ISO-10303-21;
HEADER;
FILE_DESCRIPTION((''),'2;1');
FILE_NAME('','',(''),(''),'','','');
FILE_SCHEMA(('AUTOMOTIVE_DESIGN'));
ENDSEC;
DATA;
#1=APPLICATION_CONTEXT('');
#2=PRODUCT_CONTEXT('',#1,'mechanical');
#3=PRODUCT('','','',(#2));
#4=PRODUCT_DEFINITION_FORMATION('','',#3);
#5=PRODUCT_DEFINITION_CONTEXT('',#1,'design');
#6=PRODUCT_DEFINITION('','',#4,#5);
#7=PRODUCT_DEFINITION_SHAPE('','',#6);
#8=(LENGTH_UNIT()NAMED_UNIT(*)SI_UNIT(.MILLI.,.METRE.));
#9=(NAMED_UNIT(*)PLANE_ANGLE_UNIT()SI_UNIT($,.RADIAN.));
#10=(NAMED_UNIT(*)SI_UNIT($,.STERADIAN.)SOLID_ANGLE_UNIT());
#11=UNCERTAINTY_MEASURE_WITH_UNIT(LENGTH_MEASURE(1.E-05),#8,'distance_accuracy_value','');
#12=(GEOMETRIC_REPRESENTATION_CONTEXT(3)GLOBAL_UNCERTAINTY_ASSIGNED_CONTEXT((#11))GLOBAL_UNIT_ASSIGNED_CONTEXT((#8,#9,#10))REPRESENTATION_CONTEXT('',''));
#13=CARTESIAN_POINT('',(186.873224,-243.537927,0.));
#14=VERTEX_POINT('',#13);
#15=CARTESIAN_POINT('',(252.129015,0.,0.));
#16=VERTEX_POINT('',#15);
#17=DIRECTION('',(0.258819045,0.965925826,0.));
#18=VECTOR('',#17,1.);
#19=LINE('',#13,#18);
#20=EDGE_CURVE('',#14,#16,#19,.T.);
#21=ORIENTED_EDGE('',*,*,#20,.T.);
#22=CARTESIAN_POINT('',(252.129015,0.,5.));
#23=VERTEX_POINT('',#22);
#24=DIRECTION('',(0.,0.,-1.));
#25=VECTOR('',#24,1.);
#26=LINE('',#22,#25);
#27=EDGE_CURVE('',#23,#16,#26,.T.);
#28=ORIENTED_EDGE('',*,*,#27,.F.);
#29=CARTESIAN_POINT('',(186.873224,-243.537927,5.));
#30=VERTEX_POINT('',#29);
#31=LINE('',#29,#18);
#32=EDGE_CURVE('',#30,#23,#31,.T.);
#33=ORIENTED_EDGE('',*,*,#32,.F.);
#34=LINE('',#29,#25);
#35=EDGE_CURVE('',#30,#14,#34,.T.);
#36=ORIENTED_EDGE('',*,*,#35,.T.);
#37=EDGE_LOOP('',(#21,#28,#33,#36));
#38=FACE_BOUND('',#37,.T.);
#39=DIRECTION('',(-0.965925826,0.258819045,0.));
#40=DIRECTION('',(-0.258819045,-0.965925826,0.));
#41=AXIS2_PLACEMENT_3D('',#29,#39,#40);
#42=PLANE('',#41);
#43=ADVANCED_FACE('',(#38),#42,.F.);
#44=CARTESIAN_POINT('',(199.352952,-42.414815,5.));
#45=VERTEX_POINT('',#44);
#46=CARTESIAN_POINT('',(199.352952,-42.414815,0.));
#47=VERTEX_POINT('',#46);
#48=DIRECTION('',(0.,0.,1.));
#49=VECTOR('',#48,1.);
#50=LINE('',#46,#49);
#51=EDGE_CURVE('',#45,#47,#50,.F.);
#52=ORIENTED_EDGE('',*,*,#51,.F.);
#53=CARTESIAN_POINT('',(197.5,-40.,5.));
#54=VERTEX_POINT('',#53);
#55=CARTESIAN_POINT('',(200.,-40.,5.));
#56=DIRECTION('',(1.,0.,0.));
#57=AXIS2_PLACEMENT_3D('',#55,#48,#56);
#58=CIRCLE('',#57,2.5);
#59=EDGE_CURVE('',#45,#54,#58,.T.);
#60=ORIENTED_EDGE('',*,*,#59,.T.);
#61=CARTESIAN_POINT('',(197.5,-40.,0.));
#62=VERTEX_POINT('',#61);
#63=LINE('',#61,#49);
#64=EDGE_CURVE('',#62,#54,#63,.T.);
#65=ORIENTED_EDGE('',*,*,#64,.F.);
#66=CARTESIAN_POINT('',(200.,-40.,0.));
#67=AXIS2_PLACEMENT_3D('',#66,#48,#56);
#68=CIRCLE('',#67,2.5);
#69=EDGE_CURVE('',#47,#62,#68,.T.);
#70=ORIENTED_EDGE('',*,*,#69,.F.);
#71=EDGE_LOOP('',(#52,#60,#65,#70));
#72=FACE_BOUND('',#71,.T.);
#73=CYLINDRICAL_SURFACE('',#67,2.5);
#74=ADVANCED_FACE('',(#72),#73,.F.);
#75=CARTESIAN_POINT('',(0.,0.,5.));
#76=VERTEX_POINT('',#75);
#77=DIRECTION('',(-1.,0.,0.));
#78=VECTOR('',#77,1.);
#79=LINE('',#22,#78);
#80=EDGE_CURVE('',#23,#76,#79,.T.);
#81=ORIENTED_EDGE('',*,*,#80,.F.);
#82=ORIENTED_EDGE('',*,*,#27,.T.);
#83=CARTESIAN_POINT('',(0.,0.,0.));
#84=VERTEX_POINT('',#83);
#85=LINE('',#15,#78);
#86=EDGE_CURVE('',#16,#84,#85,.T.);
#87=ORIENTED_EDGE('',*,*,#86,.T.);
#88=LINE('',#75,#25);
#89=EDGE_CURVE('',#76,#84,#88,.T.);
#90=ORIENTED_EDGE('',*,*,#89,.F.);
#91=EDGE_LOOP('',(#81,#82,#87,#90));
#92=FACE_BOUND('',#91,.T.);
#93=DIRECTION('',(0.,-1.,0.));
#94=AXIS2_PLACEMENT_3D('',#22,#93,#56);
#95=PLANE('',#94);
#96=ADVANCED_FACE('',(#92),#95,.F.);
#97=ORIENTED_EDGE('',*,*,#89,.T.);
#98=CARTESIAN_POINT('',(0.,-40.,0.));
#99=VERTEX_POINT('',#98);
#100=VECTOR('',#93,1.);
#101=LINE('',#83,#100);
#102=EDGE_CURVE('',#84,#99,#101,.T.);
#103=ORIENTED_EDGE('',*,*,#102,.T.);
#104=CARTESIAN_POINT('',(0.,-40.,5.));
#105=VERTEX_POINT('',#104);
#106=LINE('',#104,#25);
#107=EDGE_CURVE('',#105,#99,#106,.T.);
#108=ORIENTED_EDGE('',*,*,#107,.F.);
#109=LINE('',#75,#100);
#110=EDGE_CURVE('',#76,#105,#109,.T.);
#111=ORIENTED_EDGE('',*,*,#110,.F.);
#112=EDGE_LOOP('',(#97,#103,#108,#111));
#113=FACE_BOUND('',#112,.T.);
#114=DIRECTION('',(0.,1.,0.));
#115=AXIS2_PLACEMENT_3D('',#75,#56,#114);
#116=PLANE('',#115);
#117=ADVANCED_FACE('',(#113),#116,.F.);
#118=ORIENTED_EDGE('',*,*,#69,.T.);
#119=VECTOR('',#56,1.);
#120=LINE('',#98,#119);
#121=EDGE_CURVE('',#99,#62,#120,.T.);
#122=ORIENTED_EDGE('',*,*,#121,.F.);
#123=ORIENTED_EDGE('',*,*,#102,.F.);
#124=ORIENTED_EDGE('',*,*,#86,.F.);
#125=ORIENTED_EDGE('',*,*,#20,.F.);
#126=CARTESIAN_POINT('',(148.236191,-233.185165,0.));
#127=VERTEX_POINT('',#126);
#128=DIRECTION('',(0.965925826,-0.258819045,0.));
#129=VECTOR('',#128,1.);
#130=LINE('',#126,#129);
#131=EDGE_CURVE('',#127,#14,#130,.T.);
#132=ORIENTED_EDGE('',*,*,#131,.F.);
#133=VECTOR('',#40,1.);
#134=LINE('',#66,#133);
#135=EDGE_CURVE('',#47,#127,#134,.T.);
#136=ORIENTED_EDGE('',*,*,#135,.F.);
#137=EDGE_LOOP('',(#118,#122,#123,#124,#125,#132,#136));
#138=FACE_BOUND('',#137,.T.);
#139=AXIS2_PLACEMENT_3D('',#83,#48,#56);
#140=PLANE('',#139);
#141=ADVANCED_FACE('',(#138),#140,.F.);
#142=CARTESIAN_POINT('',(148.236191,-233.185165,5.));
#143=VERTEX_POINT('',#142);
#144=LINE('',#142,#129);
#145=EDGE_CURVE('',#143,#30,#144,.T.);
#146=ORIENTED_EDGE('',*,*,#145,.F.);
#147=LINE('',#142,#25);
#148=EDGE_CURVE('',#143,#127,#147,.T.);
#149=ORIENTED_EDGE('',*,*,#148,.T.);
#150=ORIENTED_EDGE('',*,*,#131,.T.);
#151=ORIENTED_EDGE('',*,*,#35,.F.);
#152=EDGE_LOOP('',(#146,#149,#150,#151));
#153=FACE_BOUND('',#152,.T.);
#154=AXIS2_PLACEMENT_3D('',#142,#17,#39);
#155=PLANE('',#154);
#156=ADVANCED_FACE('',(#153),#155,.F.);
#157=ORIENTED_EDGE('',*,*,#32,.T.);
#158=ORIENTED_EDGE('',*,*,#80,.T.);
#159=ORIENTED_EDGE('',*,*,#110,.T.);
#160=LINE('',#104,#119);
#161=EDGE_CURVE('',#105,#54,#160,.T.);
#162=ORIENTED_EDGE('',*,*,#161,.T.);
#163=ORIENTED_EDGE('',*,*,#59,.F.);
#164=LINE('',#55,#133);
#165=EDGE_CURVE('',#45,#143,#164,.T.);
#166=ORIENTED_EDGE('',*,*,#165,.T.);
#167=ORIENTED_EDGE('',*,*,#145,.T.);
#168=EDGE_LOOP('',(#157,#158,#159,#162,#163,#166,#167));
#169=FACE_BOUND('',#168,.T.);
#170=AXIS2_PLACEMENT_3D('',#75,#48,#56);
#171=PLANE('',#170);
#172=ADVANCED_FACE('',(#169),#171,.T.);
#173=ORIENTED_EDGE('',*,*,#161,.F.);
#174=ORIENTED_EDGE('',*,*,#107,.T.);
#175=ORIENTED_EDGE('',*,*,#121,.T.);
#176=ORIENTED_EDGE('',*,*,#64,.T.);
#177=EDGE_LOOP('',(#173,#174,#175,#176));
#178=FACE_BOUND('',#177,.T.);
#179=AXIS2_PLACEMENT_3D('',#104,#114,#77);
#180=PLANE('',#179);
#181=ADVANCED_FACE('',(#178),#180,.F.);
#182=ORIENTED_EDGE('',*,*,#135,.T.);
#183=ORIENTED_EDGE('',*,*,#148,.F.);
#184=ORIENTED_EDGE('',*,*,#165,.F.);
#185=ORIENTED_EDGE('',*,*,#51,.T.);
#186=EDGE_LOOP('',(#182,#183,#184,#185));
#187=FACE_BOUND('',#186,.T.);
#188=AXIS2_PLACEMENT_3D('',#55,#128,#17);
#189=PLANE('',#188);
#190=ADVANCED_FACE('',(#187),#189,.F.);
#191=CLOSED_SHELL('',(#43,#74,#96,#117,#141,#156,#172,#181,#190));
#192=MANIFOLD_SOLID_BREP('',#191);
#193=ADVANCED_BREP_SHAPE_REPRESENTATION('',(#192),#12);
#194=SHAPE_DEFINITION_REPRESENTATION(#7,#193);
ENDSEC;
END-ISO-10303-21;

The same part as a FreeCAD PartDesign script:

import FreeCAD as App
import Part
import Sketcher
Q = App.Units.Quantity

doc = App.newDocument("Part")
params = doc.addObject("Spreadsheet::Sheet", "Params")
for row, (alias, value) in enumerate([
    ("sketch1_width", "200 mm"),
    ("sketch1_height", "40 mm"),
    ("sketch1_length", "200 mm"),
    ("sketch1_length2", "40 mm"),
    ("pad1_length", "5 mm"),
    ("sketch2_diameter", "5 mm"),
], start=1):
    params.set(f"A{row}", alias)
    params.set(f"B{row}", "=" + value)
    params.setAlias(f"B{row}", alias)

body = doc.addObject("PartDesign::Body", "Body")

# Sketch on XY plane
sketch1 = body.newObject("Sketcher::SketchObject", "Sketch")
sketch1.AttachmentSupport = (doc.getObject("XY_Plane"), [""])
sketch1.MapMode = "FlatFace"
sketch1.addGeometry([
    Part.LineSegment(App.Vector(0, 0, 0), App.Vector(0, -40, 0)),  # 0
    Part.LineSegment(App.Vector(0, -40, 0), App.Vector(200, -40, 0)),  # 1
    Part.LineSegment(App.Vector(200, -40, 0), App.Vector(148, -233, 0)),  # 2
    Part.LineSegment(App.Vector(148, -233, 0), App.Vector(187, -244, 0)),  # 3
    Part.LineSegment(App.Vector(187, -244, 0), App.Vector(252, 0, 0)),  # 4
    Part.LineSegment(App.Vector(252, 0, 0), App.Vector(0, 0, 0)),  # 5
], False)
sketch1.addConstraint([
    Sketcher.Constraint("Coincident", 0, 2, 1, 1),
    Sketcher.Constraint("Coincident", 1, 2, 2, 1),
    Sketcher.Constraint("Coincident", 2, 2, 3, 1),
    Sketcher.Constraint("Coincident", 3, 2, 4, 1),
    Sketcher.Constraint("Coincident", 4, 2, 5, 1),
    Sketcher.Constraint("Coincident", 5, 2, 0, 1),
    Sketcher.Constraint("Vertical", 0),
    Sketcher.Constraint("Horizontal", 1),
    Sketcher.Constraint("Horizontal", 5),
    Sketcher.Constraint("Coincident", 5, 2, -1, 1),
    Sketcher.Constraint("Perpendicular", 2, 3),
    Sketcher.Constraint("Perpendicular", 3, 4),
    Sketcher.Constraint("DistanceX", 1, 1, 1, 2, 200.0),
    Sketcher.Constraint("DistanceY", 0, 2, 0, 1, 40.0),
    Sketcher.Constraint("Angle", 2, Q("-105 deg")),
    Sketcher.Constraint("Distance", 2, 200.0),
    Sketcher.Constraint("Distance", 3, 40.0),
])
sketch1.setExpression("Constraints[12]", "Params.sketch1_width")
sketch1.setExpression("Constraints[13]", "Params.sketch1_height")
sketch1.setExpression("Constraints[15]", "Params.sketch1_length")
sketch1.setExpression("Constraints[16]", "Params.sketch1_length2")
pad1 = body.newObject("PartDesign::Pad", "Pad")
pad1.Profile = sketch1
pad1.setExpression("Length", "Params.pad1_length")

# Sketch on XY plane
sketch2 = body.newObject("Sketcher::SketchObject", "Sketch001")
sketch2.AttachmentSupport = (doc.getObject("XY_Plane"), [""])
sketch2.MapMode = "FlatFace"
sketch2.AttachmentOffset = App.Placement(App.Vector(0, 0, 5), App.Rotation())
sketch2.addGeometry(Part.Circle(App.Vector(200, -40, 0), App.Vector(0, 0, 1), 2.5), False)
sketch2.addConstraint([
    Sketcher.Constraint("Diameter", 0, 5.0),
    Sketcher.Constraint("DistanceX", -1, 1, 0, 3, 200.0),
    Sketcher.Constraint("DistanceY", 0, 3, -1, 1, 40.0),
])
sketch2.setExpression("Constraints[0]", "Params.sketch2_diameter")
pocket1 = body.newObject("PartDesign::Pocket", "Pocket")
pocket1.Profile = sketch2
pocket1.Type = "ThroughAll"

doc.recompute()
